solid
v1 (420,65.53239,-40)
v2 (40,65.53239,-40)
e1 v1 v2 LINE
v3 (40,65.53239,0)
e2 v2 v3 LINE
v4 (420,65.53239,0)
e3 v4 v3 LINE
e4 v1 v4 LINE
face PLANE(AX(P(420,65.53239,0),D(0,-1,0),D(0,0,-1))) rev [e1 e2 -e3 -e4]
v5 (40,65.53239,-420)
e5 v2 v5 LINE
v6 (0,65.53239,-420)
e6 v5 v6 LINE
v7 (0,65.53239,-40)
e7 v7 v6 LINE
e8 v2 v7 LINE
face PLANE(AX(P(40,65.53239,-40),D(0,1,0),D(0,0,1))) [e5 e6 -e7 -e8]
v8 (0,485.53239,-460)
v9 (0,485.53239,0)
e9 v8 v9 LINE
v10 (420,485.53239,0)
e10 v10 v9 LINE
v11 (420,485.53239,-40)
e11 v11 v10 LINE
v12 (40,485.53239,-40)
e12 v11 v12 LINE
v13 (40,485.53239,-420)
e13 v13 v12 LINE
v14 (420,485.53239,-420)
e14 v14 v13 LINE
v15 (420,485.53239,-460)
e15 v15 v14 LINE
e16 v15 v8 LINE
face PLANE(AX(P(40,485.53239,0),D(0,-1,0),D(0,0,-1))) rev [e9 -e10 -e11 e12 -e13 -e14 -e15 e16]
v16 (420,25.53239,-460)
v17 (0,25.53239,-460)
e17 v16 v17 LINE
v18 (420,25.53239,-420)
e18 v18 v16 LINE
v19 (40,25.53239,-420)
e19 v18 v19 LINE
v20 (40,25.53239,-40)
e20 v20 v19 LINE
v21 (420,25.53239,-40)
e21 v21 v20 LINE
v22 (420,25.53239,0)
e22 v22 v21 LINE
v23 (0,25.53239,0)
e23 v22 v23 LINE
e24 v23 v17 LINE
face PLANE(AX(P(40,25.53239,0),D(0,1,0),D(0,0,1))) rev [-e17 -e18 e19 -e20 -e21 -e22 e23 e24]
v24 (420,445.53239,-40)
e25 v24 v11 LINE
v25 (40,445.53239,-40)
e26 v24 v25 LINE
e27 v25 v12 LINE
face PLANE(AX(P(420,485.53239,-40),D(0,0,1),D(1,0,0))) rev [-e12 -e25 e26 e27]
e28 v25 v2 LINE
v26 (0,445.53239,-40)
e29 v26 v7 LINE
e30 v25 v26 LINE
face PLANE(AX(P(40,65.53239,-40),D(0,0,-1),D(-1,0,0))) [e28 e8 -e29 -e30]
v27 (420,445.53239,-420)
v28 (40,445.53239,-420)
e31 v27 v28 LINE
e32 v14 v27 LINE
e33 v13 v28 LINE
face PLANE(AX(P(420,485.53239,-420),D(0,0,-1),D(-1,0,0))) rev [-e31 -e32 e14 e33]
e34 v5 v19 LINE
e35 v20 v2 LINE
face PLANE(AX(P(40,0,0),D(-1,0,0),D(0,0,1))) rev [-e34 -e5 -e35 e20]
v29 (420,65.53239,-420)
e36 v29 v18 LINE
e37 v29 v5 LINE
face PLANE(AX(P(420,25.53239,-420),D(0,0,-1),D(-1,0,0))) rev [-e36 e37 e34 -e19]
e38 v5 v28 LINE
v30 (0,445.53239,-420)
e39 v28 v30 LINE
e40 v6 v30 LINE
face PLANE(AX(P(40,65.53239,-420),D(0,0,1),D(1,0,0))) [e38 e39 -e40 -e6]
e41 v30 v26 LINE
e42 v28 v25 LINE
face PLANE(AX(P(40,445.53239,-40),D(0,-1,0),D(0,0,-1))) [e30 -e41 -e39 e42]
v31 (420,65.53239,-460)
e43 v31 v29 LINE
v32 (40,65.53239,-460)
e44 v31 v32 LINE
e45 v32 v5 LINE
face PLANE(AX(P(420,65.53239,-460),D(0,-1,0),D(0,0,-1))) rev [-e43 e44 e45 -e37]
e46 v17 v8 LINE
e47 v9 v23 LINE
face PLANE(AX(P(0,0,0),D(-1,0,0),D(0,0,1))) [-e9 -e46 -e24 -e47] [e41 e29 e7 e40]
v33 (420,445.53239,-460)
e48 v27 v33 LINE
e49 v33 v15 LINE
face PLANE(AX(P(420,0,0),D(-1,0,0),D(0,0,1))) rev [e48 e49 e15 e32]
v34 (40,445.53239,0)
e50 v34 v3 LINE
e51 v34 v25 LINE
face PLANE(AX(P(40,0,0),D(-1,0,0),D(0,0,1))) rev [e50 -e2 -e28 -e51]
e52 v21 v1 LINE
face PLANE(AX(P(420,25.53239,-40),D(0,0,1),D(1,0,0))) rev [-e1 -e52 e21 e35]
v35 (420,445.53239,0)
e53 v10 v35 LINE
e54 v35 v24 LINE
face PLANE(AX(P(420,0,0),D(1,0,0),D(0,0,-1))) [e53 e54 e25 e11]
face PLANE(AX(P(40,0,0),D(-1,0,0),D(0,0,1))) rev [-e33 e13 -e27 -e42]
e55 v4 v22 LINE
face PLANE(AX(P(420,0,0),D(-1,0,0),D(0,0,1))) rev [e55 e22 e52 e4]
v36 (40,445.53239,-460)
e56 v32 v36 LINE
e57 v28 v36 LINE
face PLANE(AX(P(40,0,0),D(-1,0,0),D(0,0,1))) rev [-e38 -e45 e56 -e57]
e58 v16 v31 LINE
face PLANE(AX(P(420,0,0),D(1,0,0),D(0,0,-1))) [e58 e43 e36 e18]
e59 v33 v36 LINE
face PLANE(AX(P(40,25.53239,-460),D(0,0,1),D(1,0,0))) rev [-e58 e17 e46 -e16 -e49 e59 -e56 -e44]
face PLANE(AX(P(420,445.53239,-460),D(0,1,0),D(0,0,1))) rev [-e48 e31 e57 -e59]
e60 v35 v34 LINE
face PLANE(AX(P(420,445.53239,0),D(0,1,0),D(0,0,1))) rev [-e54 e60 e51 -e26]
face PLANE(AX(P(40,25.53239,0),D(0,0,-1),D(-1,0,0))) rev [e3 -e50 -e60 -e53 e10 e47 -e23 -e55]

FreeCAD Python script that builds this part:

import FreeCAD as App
import Part
import Sketcher
Q = App.Units.Quantity

doc = App.newDocument("Part")
body = doc.addObject("PartDesign::Body", "Body")

# Sketch on YZ plane
sketch1 = body.newObject("Sketcher::SketchObject", "Sketch")
sketch1.AttachmentSupport = (doc.getObject("YZ_Plane"), [""])
sketch1.MapMode = "FlatFace"
sketch1.addGeometry([
    Part.LineSegment(App.Vector(486, 0, 0), App.Vector(26, 0, 0)),  # 0
    Part.LineSegment(App.Vector(26, 0, 0), App.Vector(26, -460, 0)),  # 1
    Part.LineSegment(App.Vector(26, -460, 0), App.Vector(486, -460, 0)),  # 2
    Part.LineSegment(App.Vector(486, -460, 0), App.Vector(486, 0, 0)),  # 3
    Part.LineSegment(App.Vector(66, -420, 0), App.Vector(66, -40, 0)),  # 4
    Part.LineSegment(App.Vector(66, -40, 0), App.Vector(446, -40, 0)),  # 5
    Part.LineSegment(App.Vector(446, -40, 0), App.Vector(446, -420, 0)),  # 6
    Part.LineSegment(App.Vector(446, -420, 0), App.Vector(66, -420, 0)),  # 7
], False)
sketch1.addConstraint([
    Sketcher.Constraint("Coincident", 0, 2, 1, 1),
    Sketcher.Constraint("Coincident", 1, 2, 2, 1),
    Sketcher.Constraint("Coincident", 2, 2, 3, 1),
    Sketcher.Constraint("Coincident", 3, 2, 0, 1),
    Sketcher.Constraint("Coincident", 4, 2, 5, 1),
    Sketcher.Constraint("Coincident", 5, 2, 6, 1),
    Sketcher.Constraint("Coincident", 6, 2, 7, 1),
    Sketcher.Constraint("Coincident", 7, 2, 4, 1),
    Sketcher.Constraint("Horizontal", 0),
    Sketcher.Constraint("Vertical", 1),
    Sketcher.Constraint("Horizontal", 2),
    Sketcher.Constraint("Vertical", 3),
    Sketcher.Constraint("Vertical", 4),
    Sketcher.Constraint("Horizontal", 5),
    Sketcher.Constraint("Vertical", 6),
    Sketcher.Constraint("Horizontal", 7),
    Sketcher.Constraint("PointOnObject", 0, 2, -1),
    Sketcher.Constraint("Equal", 2, 1),
    Sketcher.Constraint("Equal", 7, 4),
    Sketcher.Constraint("DistanceX", 0, 2, 0, 1, Q("460 mm")),
    Sketcher.Constraint("DistanceX", 5, 1, 5, 2, Q("380 mm")),
    Sketcher.Constraint("DistanceY", 4, 2, -1, 1, Q("40 mm")),
    Sketcher.Constraint("DistanceX", 0, 2, 4, 2, Q("40 mm")),
    Sketcher.Constraint("DistanceX", -1, 1, 0, 2, Q("25.53239 mm")),
])
pad1 = body.newObject("PartDesign::Pad", "Pad")
pad1.Profile = sketch1
pad1.Length = 40

# Sketch on YZ plane
sketch2 = body.newObject("Sketcher::SketchObject", "Sketch001")
sketch2.AttachmentSupport = (doc.getObject("YZ_Plane"), [""])
sketch2.MapMode = "FlatFace"
sketch2.AttachmentOffset = App.Placement(App.Vector(0, 0, 40), App.Rotation())
sketch2.addGeometry([
    Part.LineSegment(App.Vector(486, 0, 0), App.Vector(446, 0, 0)),  # 0
    Part.LineSegment(App.Vector(446, 0, 0), App.Vector(446, -40, 0)),  # 1
    Part.LineSegment(App.Vector(446, -40, 0), App.Vector(486, -40, 0)),  # 2
    Part.LineSegment(App.Vector(486, -40, 0), App.Vector(486, 0, 0)),  # 3
    Part.LineSegment(App.Vector(486, -420, 0), App.Vector(446, -420, 0)),  # 4
    Part.LineSegment(App.Vector(446, -420, 0), App.Vector(446, -460, 0)),  # 5
    Part.LineSegment(App.Vector(446, -460, 0), App.Vector(486, -460, 0)),  # 6
    Part.LineSegment(App.Vector(486, -460, 0), App.Vector(486, -420, 0)),  # 7
    Part.LineSegment(App.Vector(66, -420, 0), App.Vector(26, -420, 0)),  # 8
    Part.LineSegment(App.Vector(26, -420, 0), App.Vector(26, -460, 0)),  # 9
    Part.LineSegment(App.Vector(26, -460, 0), App.Vector(66, -460, 0)),  # 10
    Part.LineSegment(App.Vector(66, -460, 0), App.Vector(66, -420, 0)),  # 11
    Part.LineSegment(App.Vector(66, 0, 0), App.Vector(26, 0, 0)),  # 12
    Part.LineSegment(App.Vector(26, 0, 0), App.Vector(26, -40, 0)),  # 13
    Part.LineSegment(App.Vector(26, -40, 0), App.Vector(66, -40, 0)),  # 14
    Part.LineSegment(App.Vector(66, -40, 0), App.Vector(66, 0, 0)),  # 15
], False)
sketch2.addConstraint([
    Sketcher.Constraint("Coincident", 0, 2, 1, 1),
    Sketcher.Constraint("Coincident", 1, 2, 2, 1),
    Sketcher.Constraint("Coincident", 2, 2, 3, 1),
    Sketcher.Constraint("Coincident", 3, 2, 0, 1),
    Sketcher.Constraint("Coincident", 4, 2, 5, 1),
    Sketcher.Constraint("Coincident", 5, 2, 6, 1),
    Sketcher.Constraint("Coincident", 6, 2, 7, 1),
    Sketcher.Constraint("Coincident", 7, 2, 4, 1),
    Sketcher.Constraint("Coincident", 8, 2, 9, 1),
    Sketcher.Constraint("Coincident", 9, 2, 10, 1),
    Sketcher.Constraint("Coincident", 10, 2, 11, 1),
    Sketcher.Constraint("Coincident", 11, 2, 8, 1),
    Sketcher.Constraint("Coincident", 12, 2, 13, 1),
    Sketcher.Constraint("Coincident", 13, 2, 14, 1),
    Sketcher.Constraint("Coincident", 14, 2, 15, 1),
    Sketcher.Constraint("Coincident", 15, 2, 12, 1),
    Sketcher.Constraint("Horizontal", 0),
    Sketcher.Constraint("Vertical", 1),
    Sketcher.Constraint("Horizontal", 2),
    Sketcher.Constraint("Vertical", 3),
    Sketcher.Constraint("Horizontal", 4),
    Sketcher.Constraint("Vertical", 5),
    Sketcher.Constraint("Horizontal", 6),
    Sketcher.Constraint("Vertical", 7),
    Sketcher.Constraint("Horizontal", 8),
    Sketcher.Constraint("Vertical", 9),
    Sketcher.Constraint("Horizontal", 10),
    Sketcher.Constraint("Vertical", 11),
    Sketcher.Constraint("Horizontal", 12),
    Sketcher.Constraint("Vertical", 13),
    Sketcher.Constraint("Horizontal", 14),
    Sketcher.Constraint("Vertical", 15),
    Sketcher.Constraint("PointOnObject", 0, 2, -1),
    Sketcher.Constraint("PointOnObject", 12, 2, -1),
    Sketcher.Constraint("Horizontal", 7, 2, 8, 2),
    Sketcher.Constraint("Horizontal", 6, 2, 9, 2),
    Sketcher.Constraint("Horizontal", 2, 2, 13, 2),
    Sketcher.Constraint("Vertical", 1, 2, 4, 2),
    Sketcher.Constraint("Vertical", 3, 2, 6, 2),
    Sketcher.Constraint("Vertical", 9, 2, 12, 2),
    Sketcher.Constraint("Vertical", 11, 2, 14, 2),
    Sketcher.Constraint("Equal", 6, 8),
    Sketcher.Constraint("Equal", 14, 1),
    Sketcher.Constraint("Equal", 3, 5),
    Sketcher.Constraint("DistanceX", 0, 2, 0, 1, Q("40 mm")),
    Sketcher.Constraint("DistanceY", 4, 2, -1, 1, Q("420 mm")),
    Sketcher.Constraint("DistanceX", 8, 2, 4, 2, Q("420 mm")),
    Sketcher.Constraint("DistanceX", -1, 1, 0, 2, Q("445.53239 mm")),
])
pad2 = body.newObject("PartDesign::Pad", "Pad001")
pad2.Profile = sketch2
pad2.Length = 380

doc.recompute()
